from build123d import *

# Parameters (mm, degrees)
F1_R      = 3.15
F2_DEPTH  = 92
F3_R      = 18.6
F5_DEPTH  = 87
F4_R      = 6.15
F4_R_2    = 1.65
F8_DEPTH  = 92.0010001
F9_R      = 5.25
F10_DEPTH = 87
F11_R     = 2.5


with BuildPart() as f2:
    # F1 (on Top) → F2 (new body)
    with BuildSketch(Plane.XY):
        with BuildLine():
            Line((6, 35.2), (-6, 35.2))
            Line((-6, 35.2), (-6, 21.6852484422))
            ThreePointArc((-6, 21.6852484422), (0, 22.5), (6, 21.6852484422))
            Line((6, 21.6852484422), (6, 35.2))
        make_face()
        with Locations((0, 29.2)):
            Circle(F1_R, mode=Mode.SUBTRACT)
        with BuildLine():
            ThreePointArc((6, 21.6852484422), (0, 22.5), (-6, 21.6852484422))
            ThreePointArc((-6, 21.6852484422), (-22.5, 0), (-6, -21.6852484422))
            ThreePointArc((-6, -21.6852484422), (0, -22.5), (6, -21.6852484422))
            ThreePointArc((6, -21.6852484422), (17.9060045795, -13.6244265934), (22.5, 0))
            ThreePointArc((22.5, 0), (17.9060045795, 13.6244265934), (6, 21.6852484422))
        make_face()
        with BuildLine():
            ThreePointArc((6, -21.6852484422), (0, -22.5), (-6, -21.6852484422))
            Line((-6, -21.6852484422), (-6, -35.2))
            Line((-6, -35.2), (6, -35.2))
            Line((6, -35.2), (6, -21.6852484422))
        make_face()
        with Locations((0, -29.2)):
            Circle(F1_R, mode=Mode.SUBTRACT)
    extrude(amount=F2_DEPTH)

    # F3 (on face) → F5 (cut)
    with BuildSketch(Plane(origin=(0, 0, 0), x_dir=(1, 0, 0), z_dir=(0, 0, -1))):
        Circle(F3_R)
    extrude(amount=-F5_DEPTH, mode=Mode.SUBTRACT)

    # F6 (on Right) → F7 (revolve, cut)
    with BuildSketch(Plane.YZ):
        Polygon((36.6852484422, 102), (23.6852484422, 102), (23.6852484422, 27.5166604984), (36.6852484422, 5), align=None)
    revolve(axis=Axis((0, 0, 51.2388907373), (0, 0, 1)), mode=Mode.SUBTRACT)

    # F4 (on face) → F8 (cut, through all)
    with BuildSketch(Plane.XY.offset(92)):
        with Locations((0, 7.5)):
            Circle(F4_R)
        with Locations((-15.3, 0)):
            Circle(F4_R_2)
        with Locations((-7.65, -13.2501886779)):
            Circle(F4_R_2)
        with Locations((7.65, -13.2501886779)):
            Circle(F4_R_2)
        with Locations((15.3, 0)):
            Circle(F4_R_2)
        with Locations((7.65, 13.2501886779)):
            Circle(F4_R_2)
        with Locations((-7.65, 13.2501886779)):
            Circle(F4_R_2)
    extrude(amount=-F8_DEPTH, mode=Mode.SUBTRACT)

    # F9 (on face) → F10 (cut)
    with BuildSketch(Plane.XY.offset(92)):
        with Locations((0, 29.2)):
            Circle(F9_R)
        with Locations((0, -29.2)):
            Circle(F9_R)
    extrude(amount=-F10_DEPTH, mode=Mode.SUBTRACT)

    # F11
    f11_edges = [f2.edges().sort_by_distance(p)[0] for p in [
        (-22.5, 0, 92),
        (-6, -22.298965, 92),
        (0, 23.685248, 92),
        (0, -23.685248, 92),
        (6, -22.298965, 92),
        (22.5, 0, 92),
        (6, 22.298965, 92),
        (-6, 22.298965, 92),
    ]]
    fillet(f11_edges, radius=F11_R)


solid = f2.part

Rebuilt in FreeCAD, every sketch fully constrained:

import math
import FreeCAD as App
import Part
import Sketcher

V = App.Vector
Q = App.Units.Quantity


def edges_at(feature, points):
    """Names of the edges that pass closest to the given points."""
    edges = feature.Shape.Edges
    near = lambda p: min(range(len(edges)), key=lambda i: edges[i].distToShape(Part.Vertex(*p))[0])
    return sorted({f"Edge{near(p) + 1}" for p in points})


def add_polygon(sketch, points):
    """Adds a closed chain of lines whose ends are joined by coincident constraints."""
    first, n = sketch.GeometryCount, len(points)
    for a, b in zip(points, points[1:] + points[:1]):
        sketch.addGeometry(Part.LineSegment(App.Vector(*a, 0), App.Vector(*b, 0)), False)
    for i in range(n):
        sketch.addConstraint(Sketcher.Constraint("Coincident", first + i, 2, first + (i + 1) % n, 1))

doc = App.newDocument("Part")
body = doc.addObject("PartDesign::Body", "Body")

# Sketch on XY plane
sketch1 = body.newObject("Sketcher::SketchObject", "Sketch")
sketch1.AttachmentSupport = (doc.getObject("XY_Plane"), [""])
sketch1.MapMode = "FlatFace"
sketch1.addGeometry(Part.LineSegment(V(6, 35.2, 0), V(-6, 35.2, 0)), False)
sketch1.addGeometry(Part.LineSegment(V(-6, 35.2, 0), V(-6, 21.685248, 0)), False)
sketch1.addGeometry(Part.ArcOfCircle(Part.Circle(V(0, 0, 0), V(0, 0, 1), 22.5), math.radians(105.46601), math.radians(254.53399)), False)
sketch1.addGeometry(Part.LineSegment(V(-6, -21.685248, 0), V(-6, -35.2, 0)), False)
sketch1.addGeometry(Part.LineSegment(V(-6, -35.2, 0), V(6, -35.2, 0)), False)
sketch1.addGeometry(Part.LineSegment(V(6, -35.2, 0), V(6, -21.685248, 0)), False)
sketch1.addGeometry(Part.ArcOfCircle(Part.Circle(V(0, 0, 0), V(0, 0, 1), 22.5), math.radians(-74.53399), math.radians(74.53399)), False)
sketch1.addGeometry(Part.LineSegment(V(6, 21.685248, 0), V(6, 35.2, 0)), False)
sketch1.addGeometry(Part.Circle(V(0, -29.2, 0), V(0, 0, 1), 3.15), False)
sketch1.addGeometry(Part.Circle(V(0, 29.2, 0), V(0, 0, 1), 3.15), False)
sketch1.addConstraint(Sketcher.Constraint("Coincident", 0, 2, 1, 1))
sketch1.addConstraint(Sketcher.Constraint("Coincident", 1, 2, 2, 1))
sketch1.addConstraint(Sketcher.Constraint("Coincident", 2, 2, 3, 1))
sketch1.addConstraint(Sketcher.Constraint("Coincident", 3, 2, 4, 1))
sketch1.addConstraint(Sketcher.Constraint("Coincident", 4, 2, 5, 1))
sketch1.addConstraint(Sketcher.Constraint("Coincident", 5, 2, 6, 1))
sketch1.addConstraint(Sketcher.Constraint("Coincident", 6, 2, 7, 1))
sketch1.addConstraint(Sketcher.Constraint("Coincident", 7, 2, 0, 1))
sketch1.addConstraint(Sketcher.Constraint("Horizontal", 0))
sketch1.addConstraint(Sketcher.Constraint("Vertical", 1))
sketch1.addConstraint(Sketcher.Constraint("Vertical", 3))
sketch1.addConstraint(Sketcher.Constraint("Horizontal", 4))
sketch1.addConstraint(Sketcher.Constraint("Vertical", 5))
sketch1.addConstraint(Sketcher.Constraint("Vertical", 7))
sketch1.addConstraint(Sketcher.Constraint("Coincident", 2, 3, -1, 1))
sketch1.addConstraint(Sketcher.Constraint("Coincident", 6, 3, -1, 1))
sketch1.addConstraint(Sketcher.Constraint("Equal", 2, 6))
sketch1.addConstraint(Sketcher.Constraint("Equal", 8, 9))
sketch1.addConstraint(Sketcher.Constraint("Symmetric", 8, 3, 9, 3, -1, 1))
sketch1.addConstraint(Sketcher.Constraint("Symmetric", 0, 2, 4, 2, -1, 1))
sketch1.addConstraint(Sketcher.Constraint("PointOnObject", 8, 3, -2))
sketch1.addConstraint(Sketcher.Constraint("Horizontal", 2, 2, 5, 2))
sketch1.addConstraint(Sketcher.Constraint("Horizontal", 1, 2, 6, 2))
sketch1.addConstraint(Sketcher.Constraint("Diameter", 8, 6.3))
sketch1.addConstraint(Sketcher.Constraint("Radius", 2, 22.5))
sketch1.addConstraint(Sketcher.Constraint("DistanceX", 0, 2, 0, 1, 12.0))
sketch1.addConstraint(Sketcher.Constraint("DistanceY", 9, 3, 0, 2, 6.0))
sketch1.addConstraint(Sketcher.Constraint("DistanceY", 8, 3, -1, 1, 29.2))
pad1 = body.newObject("PartDesign::Pad", "Pad")
pad1.Profile = sketch1
pad1.Length = 92

# Sketch on XY plane
sketch2 = body.newObject("Sketcher::SketchObject", "Sketch001")
sketch2.AttachmentSupport = (doc.getObject("XY_Plane"), [""])
sketch2.MapMode = "FlatFace"
sketch2.addGeometry(Part.Circle(V(0, 0, 0), V(0, 0, 1), 18.6), False)
sketch2.addConstraint(Sketcher.Constraint("Coincident", 0, 3, -1, 1))
sketch2.addConstraint(Sketcher.Constraint("Diameter", 0, 37.2))
pocket1 = body.newObject("PartDesign::Pocket", "Pocket")
pocket1.Profile = sketch2
pocket1.Length = 87
pocket1.Reversed = True

# Sketch on YZ plane
sketch3 = body.newObject("Sketcher::SketchObject", "Sketch002")
sketch3.AttachmentSupport = (doc.getObject("YZ_Plane"), [""])
sketch3.MapMode = "FlatFace"
add_polygon(sketch3, [(36.685248, 102), (23.685248, 102), (23.685248, 27.51666), (36.685248, 5)])  # lines 0-3
sketch3.addConstraint(Sketcher.Constraint("Horizontal", 0))
sketch3.addConstraint(Sketcher.Constraint("Vertical", 1))
sketch3.addConstraint(Sketcher.Constraint("Vertical", 3))
sketch3.addConstraint(Sketcher.Constraint("DistanceX", 0, 2, 0, 1, 13.0))
sketch3.addConstraint(Sketcher.Constraint("DistanceY", 3, 1, 3, 2, 97.0))
sketch3.addConstraint(Sketcher.Constraint("Angle", 2, Q("-60 deg")))
sketch3.addConstraint(Sketcher.Constraint("DistanceY", -1, 1, 0, 2, 102.0))
sketch3.addConstraint(Sketcher.Constraint("DistanceX", -1, 1, 0, 2, 23.685248))
groove = body.newObject("PartDesign::Groove", "Groove")
groove.Profile = sketch3
groove.ReferenceAxis = (sketch3, ["V_Axis"])
groove.Angle = 360

# Sketch on XY plane
sketch4 = body.newObject("Sketcher::SketchObject", "Sketch003")
sketch4.AttachmentSupport = (doc.getObject("XY_Plane"), [""])
sketch4.MapMode = "FlatFace"
sketch4.AttachmentOffset = App.Placement(V(0, 0, 92), App.Rotation())
sketch4.addGeometry(Part.Circle(V(0, 7.5, 0), V(0, 0, 1), 6.15), False)
sketch4.addGeometry(Part.Circle(V(-15.3, 0, 0), V(0, 0, 1), 1.65), False)
sketch4.addGeometry(Part.Circle(V(-7.65, -13.250189, 0), V(0, 0, 1), 1.65), False)
sketch4.addGeometry(Part.Circle(V(7.65, -13.250189, 0), V(0, 0, 1), 1.65), False)
sketch4.addGeometry(Part.Circle(V(15.3, 0, 0), V(0, 0, 1), 1.65), False)
sketch4.addGeometry(Part.Circle(V(7.65, 13.250189, 0), V(0, 0, 1), 1.65), False)
sketch4.addGeometry(Part.Circle(V(-7.65, 13.250189, 0), V(0, 0, 1), 1.65), False)
sketch4.addConstraint(Sketcher.Constraint("Equal", 1, 2))
sketch4.addConstraint(Sketcher.Constraint("Equal", 2, 3))
sketch4.addConstraint(Sketcher.Constraint("Equal", 3, 4))
sketch4.addConstraint(Sketcher.Constraint("Equal", 4, 5))
sketch4.addConstraint(Sketcher.Constraint("Equal", 5, 6))
sketch4.addConstraint(Sketcher.Constraint("Symmetric", 1, 3, 4, 3, -1, 1))
sketch4.addConstraint(Sketcher.Constraint("Symmetric", 2, 3, 5, 3, -1, 1))
sketch4.addConstraint(Sketcher.Constraint("Symmetric", 3, 3, 6, 3, -1, 1))
sketch4.addConstraint(Sketcher.Constraint("Symmetric", 2, 3, 3, 3, -2))
sketch4.addConstraint(Sketcher.Constraint("PointOnObject", 0, 3, -2))
sketch4.addConstraint(Sketcher.Constraint("PointOnObject", 1, 3, -1))
sketch4.addConstraint(Sketcher.Constraint("Diameter", 0, 12.3))
sketch4.addConstraint(Sketcher.Constraint("Diameter", 1, 3.3))
sketch4.addConstraint(Sketcher.Constraint("DistanceY", -1, 1, 0, 3, 7.5))
sketch4.addConstraint(Sketcher.Constraint("DistanceX", 1, 3, -1, 1, 15.3))
sketch4.addConstraint(Sketcher.Constraint("DistanceX", 2, 3, 3, 3, 15.3))
sketch4.addConstraint(Sketcher.Constraint("DistanceY", 2, 3, -1, 1, 13.250189))
pocket2 = body.newObject("PartDesign::Pocket", "Pocket001")
pocket2.Profile = sketch4
pocket2.Type = "ThroughAll"

# Sketch on XY plane
sketch5 = body.newObject("Sketcher::SketchObject", "Sketch004")
sketch5.AttachmentSupport = (doc.getObject("XY_Plane"), [""])
sketch5.MapMode = "FlatFace"
sketch5.AttachmentOffset = App.Placement(V(0, 0, 92), App.Rotation())
sketch5.addGeometry(Part.Circle(V(0, 29.2, 0), V(0, 0, 1), 5.25), False)
sketch5.addGeometry(Part.Circle(V(0, -29.2, 0), V(0, 0, 1), 5.25), False)
sketch5.addConstraint(Sketcher.Constraint("Equal", 0, 1))
sketch5.addConstraint(Sketcher.Constraint("Symmetric", 0, 3, 1, 3, -1, 1))
sketch5.addConstraint(Sketcher.Constraint("PointOnObject", 0, 3, -2))
sketch5.addConstraint(Sketcher.Constraint("Diameter", 0, 10.5))
sketch5.addConstraint(Sketcher.Constraint("DistanceY", -1, 1, 0, 3, 29.2))
pocket3 = body.newObject("PartDesign::Pocket", "Pocket002")
pocket3.Profile = sketch5
pocket3.Length = 87
doc.recompute()

fillet = body.newObject("PartDesign::Fillet", "Fillet")
fillet.Base = (pocket3, edges_at(pocket3, [
    (-22.5, 0, 92),
    (-6, -22.299, 92),
    (0, 23.685, 92),
    (0, -23.685, 92),
    (6, -22.299, 92),
    (22.5, 0, 92),
    (6, 22.299, 92),
    (-6, 22.299, 92),
]))
fillet.Radius = 2.5

doc.recompute()
